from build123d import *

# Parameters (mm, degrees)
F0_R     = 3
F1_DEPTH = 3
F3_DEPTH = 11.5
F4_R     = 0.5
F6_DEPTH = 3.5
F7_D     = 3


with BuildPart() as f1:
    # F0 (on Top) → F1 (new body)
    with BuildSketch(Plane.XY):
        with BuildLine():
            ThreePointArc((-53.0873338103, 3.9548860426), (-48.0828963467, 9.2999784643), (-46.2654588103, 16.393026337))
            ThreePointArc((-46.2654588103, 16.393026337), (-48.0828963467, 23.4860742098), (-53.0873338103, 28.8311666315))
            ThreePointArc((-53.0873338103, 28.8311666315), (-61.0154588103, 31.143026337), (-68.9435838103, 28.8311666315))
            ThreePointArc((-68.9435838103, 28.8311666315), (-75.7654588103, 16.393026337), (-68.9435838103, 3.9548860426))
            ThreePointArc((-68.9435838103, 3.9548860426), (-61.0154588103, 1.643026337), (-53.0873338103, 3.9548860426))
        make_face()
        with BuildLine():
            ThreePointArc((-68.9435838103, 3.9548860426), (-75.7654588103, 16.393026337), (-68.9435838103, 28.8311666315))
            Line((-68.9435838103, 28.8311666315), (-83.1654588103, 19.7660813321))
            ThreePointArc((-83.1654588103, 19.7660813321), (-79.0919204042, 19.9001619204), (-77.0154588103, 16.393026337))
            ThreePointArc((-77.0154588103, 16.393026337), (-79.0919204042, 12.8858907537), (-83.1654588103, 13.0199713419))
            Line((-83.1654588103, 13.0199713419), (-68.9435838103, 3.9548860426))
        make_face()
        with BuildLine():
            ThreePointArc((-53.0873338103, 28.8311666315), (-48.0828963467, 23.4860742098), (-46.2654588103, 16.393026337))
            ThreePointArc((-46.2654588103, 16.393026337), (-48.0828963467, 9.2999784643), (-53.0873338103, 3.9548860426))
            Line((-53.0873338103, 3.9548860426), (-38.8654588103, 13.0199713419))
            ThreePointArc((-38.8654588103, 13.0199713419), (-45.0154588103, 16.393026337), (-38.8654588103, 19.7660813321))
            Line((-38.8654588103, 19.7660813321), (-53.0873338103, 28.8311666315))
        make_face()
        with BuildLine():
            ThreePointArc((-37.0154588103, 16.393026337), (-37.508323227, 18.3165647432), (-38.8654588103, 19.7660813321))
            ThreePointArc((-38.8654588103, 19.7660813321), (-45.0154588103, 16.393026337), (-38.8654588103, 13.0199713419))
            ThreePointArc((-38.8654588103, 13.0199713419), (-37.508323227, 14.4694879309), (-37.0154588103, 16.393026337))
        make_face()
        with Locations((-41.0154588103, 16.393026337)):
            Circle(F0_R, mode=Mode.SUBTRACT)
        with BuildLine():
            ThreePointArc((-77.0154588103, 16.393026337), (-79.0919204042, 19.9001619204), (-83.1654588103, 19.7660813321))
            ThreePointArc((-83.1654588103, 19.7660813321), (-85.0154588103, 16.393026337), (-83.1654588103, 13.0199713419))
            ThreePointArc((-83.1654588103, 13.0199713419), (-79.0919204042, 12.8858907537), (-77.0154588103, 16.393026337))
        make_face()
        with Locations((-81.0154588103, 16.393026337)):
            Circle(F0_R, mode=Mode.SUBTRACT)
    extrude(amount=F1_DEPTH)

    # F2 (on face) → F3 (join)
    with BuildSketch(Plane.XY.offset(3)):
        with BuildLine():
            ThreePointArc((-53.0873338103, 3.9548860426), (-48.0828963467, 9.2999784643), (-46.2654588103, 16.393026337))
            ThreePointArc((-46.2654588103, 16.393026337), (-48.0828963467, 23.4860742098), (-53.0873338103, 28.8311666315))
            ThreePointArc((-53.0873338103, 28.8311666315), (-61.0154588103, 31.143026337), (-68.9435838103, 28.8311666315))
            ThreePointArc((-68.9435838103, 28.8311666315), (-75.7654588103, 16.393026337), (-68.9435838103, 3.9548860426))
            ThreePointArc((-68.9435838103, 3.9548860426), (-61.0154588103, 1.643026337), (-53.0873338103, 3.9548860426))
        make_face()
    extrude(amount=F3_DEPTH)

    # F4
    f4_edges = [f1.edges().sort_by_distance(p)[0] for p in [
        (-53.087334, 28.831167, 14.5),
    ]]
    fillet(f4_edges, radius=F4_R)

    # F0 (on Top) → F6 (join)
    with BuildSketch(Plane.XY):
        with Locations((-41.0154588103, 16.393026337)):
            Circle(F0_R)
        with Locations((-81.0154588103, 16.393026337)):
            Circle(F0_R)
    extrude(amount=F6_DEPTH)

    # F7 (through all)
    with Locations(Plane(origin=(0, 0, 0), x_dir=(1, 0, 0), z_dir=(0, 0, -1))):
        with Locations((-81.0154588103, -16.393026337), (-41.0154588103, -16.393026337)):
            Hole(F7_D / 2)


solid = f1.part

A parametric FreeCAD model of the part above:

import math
import FreeCAD as App
import Part
import Sketcher

V = App.Vector


def edges_at(feature, points):
    """Names of the edges that pass closest to the given points."""
    edges = feature.Shape.Edges
    near = lambda p: min(range(len(edges)), key=lambda i: edges[i].distToShape(Part.Vertex(*p))[0])
    return sorted({f"Edge{near(p) + 1}" for p in points})

doc = App.newDocument("Part")
params = doc.addObject("Spreadsheet::Sheet", "Params")
for row, (alias, value) in enumerate([
    ("sketch1_diameter", "6 mm"),
    ("sketch1_radius", "4 mm"),
    ("sketch1_radius2", "14.75 mm"),
    ("pad1_length", "3 mm"),
    ("sketch2_radius", "14.75 mm"),
    ("pad2_length", "11.5 mm"),
    ("fillet_radius", "0.5 mm"),
    ("sketch3_diameter", "6 mm"),
    ("pad3_length", "3.5 mm"),
    ("sketch4_diameter", "3 mm"),
    ("hole_diameter", "3 mm"),
], start=1):
    params.set(f"A{row}", alias)
    params.set(f"B{row}", "=" + value)
    params.setAlias(f"B{row}", alias)

body = doc.addObject("PartDesign::Body", "Body")

# Sketch on XY plane
sketch1 = doc.addObject("Sketcher::SketchObject", "Sketch")
body.addObject(sketch1)
sketch1.AttachmentSupport = (doc.XY_Plane, [""])
sketch1.MapMode = "FlatFace"
sketch1.addGeometry([
    Part.ArcOfCircle(Part.Circle(V(-61, 16.4, 0), V(0, 0, 1), 14.8), math.radians(57), math.radians(123)),  # 0
    Part.LineSegment(V(-68.9, 28.8, 0), V(-83.2, 19.8, 0)),  # 1
    Part.ArcOfCircle(Part.Circle(V(-81, 16.4, 0), V(0, 0, 1), 4), math.radians(123), math.radians(237)),  # 2
    Part.LineSegment(V(-83.2, 13, 0), V(-68.9, 4, 0)),  # 3
    Part.ArcOfCircle(Part.Circle(V(-61, 16.4, 0), V(0, 0, 1), 14.8), math.radians(-123), math.radians(-57)),  # 4
    Part.LineSegment(V(-53.1, 4, 0), V(-38.9, 13, 0)),  # 5
    Part.ArcOfCircle(Part.Circle(V(-41, 16.4, 0), V(0, 0, 1), 4), math.radians(-57), math.radians(0)),  # 6
    Part.ArcOfCircle(Part.Circle(V(-41, 16.4, 0), V(0, 0, 1), 4), math.radians(0), math.radians(57)),  # 7
    Part.LineSegment(V(-38.9, 19.8, 0), V(-53.1, 28.8, 0)),  # 8
    Part.Circle(V(-81, 16.4, 0), V(0, 0, 1), 3),  # 9
    Part.Circle(V(-41, 16.4, 0), V(0, 0, 1), 3),  # 10
], False)
sketch1.addConstraint([
    Sketcher.Constraint("Tangent", 0, 2, 1, 1),
    Sketcher.Constraint("Tangent", 1, 2, 2, 1),
    Sketcher.Constraint("Tangent", 2, 2, 3, 1),
    Sketcher.Constraint("Tangent", 3, 2, 4, 1),
    Sketcher.Constraint("Tangent", 4, 2, 5, 1),
    Sketcher.Constraint("Tangent", 5, 2, 6, 1),
    Sketcher.Constraint("Tangent", 6, 2, 7, 1),
    Sketcher.Constraint("Tangent", 7, 2, 8, 1),
    Sketcher.Constraint("Tangent", 8, 2, 0, 1),
    Sketcher.Constraint("Coincident", 4, 3, 0, 3),
    Sketcher.Constraint("Coincident", 9, 3, 2, 3),
    Sketcher.Constraint("Coincident", 10, 3, 6, 3),
    Sketcher.Constraint("Equal", 0, 4),
    Sketcher.Constraint("Equal", 2, 6),
    Sketcher.Constraint("Equal", 6, 7),
    Sketcher.Constraint("Equal", 9, 10),
    Sketcher.Constraint("Parallel", 1, 5),
    Sketcher.Constraint("Parallel", 3, 8),
    Sketcher.Constraint("Horizontal", 0, 3, 2, 3),
    Sketcher.Constraint("Horizontal", 10, 3, 6, 2),
    Sketcher.Constraint("Diameter", 9, 6.0),
    Sketcher.Constraint("Radius", 2, 4.0),
    Sketcher.Constraint("Radius", 0, 14.75),
    Sketcher.Constraint("DistanceX", 2, 3, 0, 3, 20.0),
    Sketcher.Constraint("DistanceX", 0, 3, -1, 1, 61.015459),
    Sketcher.Constraint("DistanceY", -1, 1, 1, 2, 19.766081),
])
sketch1.setExpression("Constraints[20]", "Params.sketch1_diameter")
sketch1.setExpression("Constraints[21]", "Params.sketch1_radius")
sketch1.setExpression("Constraints[22]", "Params.sketch1_radius2")
pad1 = doc.addObject("PartDesign::Pad", "Pad")
body.addObject(pad1)
pad1.Profile = sketch1
pad1.setExpression("Length", "Params.pad1_length")

# Sketch on XY plane
sketch2 = doc.addObject("Sketcher::SketchObject", "Sketch001")
body.addObject(sketch2)
sketch2.AttachmentSupport = (doc.XY_Plane, [""])
sketch2.MapMode = "FlatFace"
sketch2.AttachmentOffset = App.Placement(V(0, 0, 3), App.Rotation())
sketch2.addGeometry([
    Part.ArcOfCircle(Part.Circle(V(-61, 16, 0), V(0, 0, 1), 15), math.radians(-57), math.radians(57)),
    Part.ArcOfCircle(Part.Circle(V(-61, 16, 0), V(0, 0, 1), 15), math.radians(57), math.radians(123)),
    Part.ArcOfCircle(Part.Circle(V(-61, 16, 0), V(0, 0, 1), 15), math.radians(123), math.radians(237)),
    Part.ArcOfCircle(Part.Circle(V(-61, 16, 0), V(0, 0, 1), 15), math.radians(-123), math.radians(-57)),
], False)
sketch2.addConstraint([
    Sketcher.Constraint("Tangent", 0, 2, 1, 1),
    Sketcher.Constraint("Tangent", 1, 2, 2, 1),
    Sketcher.Constraint("Tangent", 2, 2, 3, 1),
    Sketcher.Constraint("Tangent", 3, 2, 0, 1),
    Sketcher.Constraint("Equal", 0, 1),
    Sketcher.Constraint("Horizontal", 0, 2, 1, 2),
    Sketcher.Constraint("Horizontal", 2, 2, 3, 2),
    Sketcher.Constraint("Vertical", 1, 2, 2, 2),
    Sketcher.Constraint("Radius", 0, 14.75),
    Sketcher.Constraint("DistanceX", 0, 3, -1, 1, 61.015459),
    Sketcher.Constraint("DistanceY", 0, 3, 0, 2, 12.43814),
    Sketcher.Constraint("DistanceY", -1, 1, 0, 3, 16.393026),
])
sketch2.setExpression("Constraints[8]", "Params.sketch2_radius")
pad2 = doc.addObject("PartDesign::Pad", "Pad001")
body.addObject(pad2)
pad2.Profile = sketch2
pad2.setExpression("Length", "Params.pad2_length")
doc.recompute()

fillet = doc.addObject("PartDesign::Fillet", "Fillet")
body.addObject(fillet)
fillet.Base = (pad2, edges_at(pad2, [(-61.015, 31.143, 14.5)]))
fillet.setExpression("Radius", "Params.fillet_radius")

# Sketch on XY plane
sketch3 = doc.addObject("Sketcher::SketchObject", "Sketch002")
body.addObject(sketch3)
sketch3.AttachmentSupport = (doc.XY_Plane, [""])
sketch3.MapMode = "FlatFace"
sketch3.addGeometry([
    Part.Circle(V(-41, 16.4, 0), V(0, 0, 1), 3),
    Part.Circle(V(-81, 16.4, 0), V(0, 0, 1), 3),
], False)
sketch3.addConstraint([
    Sketcher.Constraint("Equal", 0, 1),
    Sketcher.Constraint("Horizontal", 0, 3, 1, 3),
    Sketcher.Constraint("Diameter", 0, 6.0),
    Sketcher.Constraint("DistanceX", 1, 3, 0, 3, 40.0),
    Sketcher.Constraint("DistanceX", 0, 3, -1, 1, 41.015459),
    Sketcher.Constraint("DistanceY", -1, 1, 0, 3, 16.393026),
])
sketch3.setExpression("Constraints[2]", "Params.sketch3_diameter")
pad3 = doc.addObject("PartDesign::Pad", "Pad002")
body.addObject(pad3)
pad3.Profile = sketch3
pad3.setExpression("Length", "Params.pad3_length")

# Sketch on XY plane
sketch4 = doc.addObject("Sketcher::SketchObject", "Sketch003")
body.addObject(sketch4)
sketch4.AttachmentSupport = (doc.XY_Plane, [""])
sketch4.MapMode = "FlatFace"
sketch4.addGeometry([
    Part.Circle(V(-81, 16.4, 0), V(0, 0, 1), 1.5),
    Part.Circle(V(-41, 16.4, 0), V(0, 0, 1), 1.5),
], False)
sketch4.addConstraint([
    Sketcher.Constraint("Equal", 0, 1),
    Sketcher.Constraint("Horizontal", 0, 3, 1, 3),
    Sketcher.Constraint("Diameter", 0, 3.0),
    Sketcher.Constraint("DistanceX", 0, 3, 1, 3, 40.0),
    Sketcher.Constraint("DistanceX", 0, 3, -1, 1, 81.015459),
    Sketcher.Constraint("DistanceY", -1, 1, 0, 3, 16.393026),
])
sketch4.setExpression("Constraints[2]", "Params.sketch4_diameter")
doc.recompute()
hole = doc.addObject("PartDesign::Hole", "Hole")
body.addObject(hole)
hole.Profile = sketch4
hole.ThreadType = "None"
hole.setExpression("Diameter", "Params.hole_diameter")
hole.DepthType = "ThroughAll"
hole.Reversed = True

doc.recompute()
